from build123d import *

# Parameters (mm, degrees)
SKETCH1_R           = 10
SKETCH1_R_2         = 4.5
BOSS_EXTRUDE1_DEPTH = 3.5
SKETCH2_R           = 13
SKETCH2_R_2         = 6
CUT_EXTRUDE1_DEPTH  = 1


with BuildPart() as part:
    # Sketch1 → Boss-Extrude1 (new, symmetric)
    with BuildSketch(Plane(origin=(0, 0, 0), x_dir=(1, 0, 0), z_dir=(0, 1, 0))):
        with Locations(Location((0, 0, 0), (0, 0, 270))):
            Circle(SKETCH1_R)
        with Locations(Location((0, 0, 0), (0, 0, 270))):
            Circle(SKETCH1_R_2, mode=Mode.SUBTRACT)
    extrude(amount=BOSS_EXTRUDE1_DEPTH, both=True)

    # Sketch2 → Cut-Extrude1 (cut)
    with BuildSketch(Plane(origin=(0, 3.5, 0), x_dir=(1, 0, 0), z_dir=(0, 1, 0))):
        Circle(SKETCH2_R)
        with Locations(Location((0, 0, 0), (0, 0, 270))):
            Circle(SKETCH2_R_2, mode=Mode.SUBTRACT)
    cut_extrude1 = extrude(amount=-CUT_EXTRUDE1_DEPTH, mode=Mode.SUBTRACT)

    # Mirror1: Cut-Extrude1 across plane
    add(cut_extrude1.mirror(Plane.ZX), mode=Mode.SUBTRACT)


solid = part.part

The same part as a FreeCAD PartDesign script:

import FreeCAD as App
import Part
import Sketcher
Q = App.Units.Quantity

doc = App.newDocument("Part")
body = doc.addObject("PartDesign::Body", "Body")

# Sketch on XZ plane
sketch1 = doc.addObject("Sketcher::SketchObject", "Sketch")
body.addObject(sketch1)
sketch1.AttachmentSupport = (doc.XZ_Plane, [""])
sketch1.MapMode = "FlatFace"
sketch1.addGeometry([
    Part.Circle(App.Vector(0, 0, 0), App.Vector(0, 0, 1), 10),
    Part.Circle(App.Vector(0, 0, 0), App.Vector(0, 0, 1), 4.5),
], False)
sketch1.addConstraint([
    Sketcher.Constraint("Coincident", 0, 3, -1, 1),
    Sketcher.Constraint("Coincident", 1, 3, -1, 1),
    Sketcher.Constraint("Diameter", 0, Q("20 mm")),
    Sketcher.Constraint("Diameter", 1, Q("9 mm")),
])
pad1 = doc.addObject("PartDesign::Pad", "Pad")
body.addObject(pad1)
pad1.Profile = sketch1
pad1.Length = 7
pad1.Midplane = True

# Sketch on XZ plane
sketch2 = doc.addObject("Sketcher::SketchObject", "Sketch001")
body.addObject(sketch2)
sketch2.AttachmentSupport = (doc.XZ_Plane, [""])
sketch2.MapMode = "FlatFace"
sketch2.AttachmentOffset = App.Placement(App.Vector(0, 0, -3.5), App.Rotation())
sketch2.addGeometry([
    Part.Circle(App.Vector(0, 0, 0), App.Vector(0, 0, 1), 13),
    Part.Circle(App.Vector(0, 0, 0), App.Vector(0, 0, 1), 6),
], False)
sketch2.addConstraint([
    Sketcher.Constraint("Coincident", 0, 3, -1, 1),
    Sketcher.Constraint("Coincident", 1, 3, -1, 1),
    Sketcher.Constraint("Diameter", 0, Q("26 mm")),
    Sketcher.Constraint("Diameter", 1, Q("12 mm")),
])
pocket1 = doc.addObject("PartDesign::Pocket", "Pocket")
body.addObject(pocket1)
pocket1.Profile = sketch2
pocket1.Length = 1
pocket1.Reversed = True
doc.recompute()

mirrored = doc.addObject("PartDesign::Mirrored", "Mirrored")
body.addObject(mirrored)
mirrored.Originals = [pocket1]
mirrored.MirrorPlane = (doc.XZ_Plane, [""])
body.Tip = mirrored

doc.recompute()
